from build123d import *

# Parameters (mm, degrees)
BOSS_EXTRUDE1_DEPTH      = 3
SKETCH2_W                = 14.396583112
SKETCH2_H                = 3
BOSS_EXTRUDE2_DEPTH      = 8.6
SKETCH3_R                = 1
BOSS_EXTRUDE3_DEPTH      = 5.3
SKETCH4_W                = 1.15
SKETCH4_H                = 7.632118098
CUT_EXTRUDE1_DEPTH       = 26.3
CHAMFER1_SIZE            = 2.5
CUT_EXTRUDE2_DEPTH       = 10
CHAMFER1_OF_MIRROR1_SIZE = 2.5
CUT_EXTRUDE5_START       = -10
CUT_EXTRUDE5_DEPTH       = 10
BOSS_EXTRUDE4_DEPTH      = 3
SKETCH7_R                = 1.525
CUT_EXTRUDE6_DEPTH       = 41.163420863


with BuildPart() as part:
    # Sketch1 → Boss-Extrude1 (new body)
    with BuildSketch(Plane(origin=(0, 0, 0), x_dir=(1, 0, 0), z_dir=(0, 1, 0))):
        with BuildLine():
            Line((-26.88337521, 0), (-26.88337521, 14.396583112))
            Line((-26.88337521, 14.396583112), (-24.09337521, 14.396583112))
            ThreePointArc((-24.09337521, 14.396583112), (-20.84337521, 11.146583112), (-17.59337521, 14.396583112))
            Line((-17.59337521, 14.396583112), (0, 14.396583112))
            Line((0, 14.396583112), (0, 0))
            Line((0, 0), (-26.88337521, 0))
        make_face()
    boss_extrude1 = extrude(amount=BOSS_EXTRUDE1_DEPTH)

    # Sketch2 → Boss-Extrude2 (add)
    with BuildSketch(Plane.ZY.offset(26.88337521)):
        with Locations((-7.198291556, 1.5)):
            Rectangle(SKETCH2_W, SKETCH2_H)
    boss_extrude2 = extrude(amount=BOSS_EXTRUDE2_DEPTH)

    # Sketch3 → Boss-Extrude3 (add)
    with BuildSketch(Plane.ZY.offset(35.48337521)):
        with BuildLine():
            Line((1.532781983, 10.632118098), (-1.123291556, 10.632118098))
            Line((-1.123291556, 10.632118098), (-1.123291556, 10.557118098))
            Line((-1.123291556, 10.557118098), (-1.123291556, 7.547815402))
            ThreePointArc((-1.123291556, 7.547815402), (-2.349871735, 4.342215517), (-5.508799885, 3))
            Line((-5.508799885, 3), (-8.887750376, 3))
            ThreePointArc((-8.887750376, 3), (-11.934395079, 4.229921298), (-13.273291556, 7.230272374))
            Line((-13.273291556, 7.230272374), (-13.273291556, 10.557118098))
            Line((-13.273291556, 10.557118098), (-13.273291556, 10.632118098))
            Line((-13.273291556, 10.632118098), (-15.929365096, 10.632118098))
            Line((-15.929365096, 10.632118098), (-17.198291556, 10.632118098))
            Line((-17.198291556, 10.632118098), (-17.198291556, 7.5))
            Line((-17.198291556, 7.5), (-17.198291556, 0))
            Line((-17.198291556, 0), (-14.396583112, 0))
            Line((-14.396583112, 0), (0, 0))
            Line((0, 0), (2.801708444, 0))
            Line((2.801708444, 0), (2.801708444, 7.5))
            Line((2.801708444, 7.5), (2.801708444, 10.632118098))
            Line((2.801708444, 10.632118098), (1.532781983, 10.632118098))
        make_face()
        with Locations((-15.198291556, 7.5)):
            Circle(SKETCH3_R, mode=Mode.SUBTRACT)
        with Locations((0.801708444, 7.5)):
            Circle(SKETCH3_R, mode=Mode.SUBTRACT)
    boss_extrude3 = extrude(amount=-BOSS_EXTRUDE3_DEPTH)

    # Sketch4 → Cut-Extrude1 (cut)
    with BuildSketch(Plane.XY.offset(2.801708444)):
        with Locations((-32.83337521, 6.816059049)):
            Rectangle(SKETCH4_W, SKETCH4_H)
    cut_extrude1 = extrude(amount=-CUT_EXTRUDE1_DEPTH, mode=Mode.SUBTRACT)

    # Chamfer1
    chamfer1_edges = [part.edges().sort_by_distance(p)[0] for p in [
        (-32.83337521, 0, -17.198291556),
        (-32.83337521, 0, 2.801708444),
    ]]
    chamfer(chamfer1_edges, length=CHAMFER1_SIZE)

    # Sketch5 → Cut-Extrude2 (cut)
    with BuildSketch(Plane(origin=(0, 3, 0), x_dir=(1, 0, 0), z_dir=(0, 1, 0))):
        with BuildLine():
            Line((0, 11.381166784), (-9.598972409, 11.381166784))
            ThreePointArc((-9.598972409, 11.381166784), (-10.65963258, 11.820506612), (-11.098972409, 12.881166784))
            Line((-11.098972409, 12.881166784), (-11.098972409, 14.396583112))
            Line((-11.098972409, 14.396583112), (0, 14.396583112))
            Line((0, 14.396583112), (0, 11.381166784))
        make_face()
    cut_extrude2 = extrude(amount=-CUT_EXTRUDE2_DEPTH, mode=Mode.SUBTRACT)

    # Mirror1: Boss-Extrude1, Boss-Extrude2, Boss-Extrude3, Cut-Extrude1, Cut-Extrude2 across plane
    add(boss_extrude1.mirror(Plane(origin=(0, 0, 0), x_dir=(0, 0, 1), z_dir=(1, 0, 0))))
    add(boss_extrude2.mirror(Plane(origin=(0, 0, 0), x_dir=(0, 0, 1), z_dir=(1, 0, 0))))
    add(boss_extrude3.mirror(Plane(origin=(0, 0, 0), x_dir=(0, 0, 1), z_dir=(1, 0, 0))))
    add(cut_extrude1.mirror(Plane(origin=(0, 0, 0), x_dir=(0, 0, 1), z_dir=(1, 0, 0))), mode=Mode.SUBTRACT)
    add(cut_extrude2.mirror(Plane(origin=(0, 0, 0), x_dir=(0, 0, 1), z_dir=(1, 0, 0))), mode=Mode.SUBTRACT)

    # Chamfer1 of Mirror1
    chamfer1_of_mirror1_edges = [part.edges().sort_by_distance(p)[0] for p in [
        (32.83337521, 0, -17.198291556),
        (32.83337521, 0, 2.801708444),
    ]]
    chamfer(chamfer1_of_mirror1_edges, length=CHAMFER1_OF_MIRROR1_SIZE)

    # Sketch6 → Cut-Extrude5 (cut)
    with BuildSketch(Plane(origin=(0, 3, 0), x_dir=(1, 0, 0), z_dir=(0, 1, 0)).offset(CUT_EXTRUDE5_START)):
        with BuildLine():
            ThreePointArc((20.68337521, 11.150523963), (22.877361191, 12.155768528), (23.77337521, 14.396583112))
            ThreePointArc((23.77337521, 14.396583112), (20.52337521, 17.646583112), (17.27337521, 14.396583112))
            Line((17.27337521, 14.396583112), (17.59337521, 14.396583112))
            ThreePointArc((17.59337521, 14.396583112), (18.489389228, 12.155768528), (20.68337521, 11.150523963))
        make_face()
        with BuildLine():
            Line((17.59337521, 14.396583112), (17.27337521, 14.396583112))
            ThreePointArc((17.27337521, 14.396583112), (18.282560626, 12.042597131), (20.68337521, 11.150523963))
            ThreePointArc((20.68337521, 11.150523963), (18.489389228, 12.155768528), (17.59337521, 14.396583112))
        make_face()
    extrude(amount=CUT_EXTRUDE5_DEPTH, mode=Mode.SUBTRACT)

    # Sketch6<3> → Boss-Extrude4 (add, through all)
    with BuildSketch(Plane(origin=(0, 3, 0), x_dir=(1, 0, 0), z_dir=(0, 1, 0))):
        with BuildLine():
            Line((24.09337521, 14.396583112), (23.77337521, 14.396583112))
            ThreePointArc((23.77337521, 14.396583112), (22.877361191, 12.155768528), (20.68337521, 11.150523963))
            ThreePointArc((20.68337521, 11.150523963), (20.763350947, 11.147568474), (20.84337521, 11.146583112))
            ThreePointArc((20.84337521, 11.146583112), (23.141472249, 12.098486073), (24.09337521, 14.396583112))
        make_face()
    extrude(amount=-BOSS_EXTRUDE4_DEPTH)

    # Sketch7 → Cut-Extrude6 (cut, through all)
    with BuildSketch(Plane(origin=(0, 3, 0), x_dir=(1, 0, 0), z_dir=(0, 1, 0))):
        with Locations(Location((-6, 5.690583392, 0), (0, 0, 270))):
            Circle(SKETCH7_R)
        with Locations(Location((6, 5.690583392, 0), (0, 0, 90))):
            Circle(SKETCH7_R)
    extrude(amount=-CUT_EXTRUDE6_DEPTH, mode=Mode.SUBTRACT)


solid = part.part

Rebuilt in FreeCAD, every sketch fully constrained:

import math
import FreeCAD as App
import Part
import Sketcher

V = App.Vector


def edges_at(feature, points):
    """Names of the edges that pass closest to the given points."""
    edges = feature.Shape.Edges
    near = lambda p: min(range(len(edges)), key=lambda i: edges[i].distToShape(Part.Vertex(*p))[0])
    return sorted({f"Edge{near(p) + 1}" for p in points})


def add_polygon(sketch, points):
    """Adds a closed chain of lines whose ends are joined by coincident constraints."""
    first, n = sketch.GeometryCount, len(points)
    for a, b in zip(points, points[1:] + points[:1]):
        sketch.addGeometry(Part.LineSegment(App.Vector(*a, 0), App.Vector(*b, 0)), False)
    for i in range(n):
        sketch.addConstraint(Sketcher.Constraint("Coincident", first + i, 2, first + (i + 1) % n, 1))

doc = App.newDocument("Part")
body = doc.addObject("PartDesign::Body", "Body")

sketch1 = body.newObject("Sketcher::SketchObject", "Sketch")
sketch1.AttachmentSupport = (doc.getObject("XZ_Plane"), [""])
sketch1.MapMode = "FlatFace"
sketch1.addGeometry([
    Part.LineSegment(V(-26.9, -14.4, 0), V(-26.9, 0, 0)),
    Part.LineSegment(V(-26.9, 0, 0), V(0, 0, 0)),
    Part.LineSegment(V(0, 0, 0), V(0, -14.4, 0)),
    Part.LineSegment(V(0, -14.4, 0), V(-17.6, -14.4, 0)),
    Part.ArcOfCircle(Part.Circle(V(-20.8, -14.4, 0), V(0, 0, 1), 3.2), math.radians(0), math.radians(180)),
    Part.LineSegment(V(-24.1, -14.4, 0), V(-26.9, -14.4, 0)),
], False)
sketch1.addConstraint([
    Sketcher.Constraint("Coincident", 0, 2, 1, 1),
    Sketcher.Constraint("Coincident", 1, 2, 2, 1),
    Sketcher.Constraint("Coincident", 2, 2, 3, 1),
    Sketcher.Constraint("Coincident", 3, 2, 4, 1),
    Sketcher.Constraint("Coincident", 4, 2, 5, 1),
    Sketcher.Constraint("Coincident", 5, 2, 0, 1),
    Sketcher.Constraint("Vertical", 0),
    Sketcher.Constraint("Horizontal", 1),
    Sketcher.Constraint("Vertical", 2),
    Sketcher.Constraint("Horizontal", 3),
    Sketcher.Constraint("Horizontal", 5),
    Sketcher.Constraint("Coincident", 1, 2, -1, 1),
    Sketcher.Constraint("Horizontal", 4, 3, 2, 2),
    Sketcher.Constraint("Horizontal", 3, 2, 4, 2),
    Sketcher.Constraint("Radius", 4, 3.25),
    Sketcher.Constraint("DistanceX", 5, 2, 5, 1, 2.79),
    Sketcher.Constraint("DistanceX", 1, 1, 1, 2, 26.883375),
    Sketcher.Constraint("DistanceY", 0, 1, 0, 2, 14.396583),
])
pad1 = body.newObject("PartDesign::Pad", "Pad")
pad1.Profile = sketch1
pad1.Length = 3
pad1.Reversed = True

sketch2 = body.newObject("Sketcher::SketchObject", "Sketch001")
sketch2.AttachmentSupport = (doc.getObject("YZ_Plane"), [""])
sketch2.MapMode = "FlatFace"
sketch2.AttachmentOffset = App.Placement(V(0, 0, -26.883375), App.Rotation())
add_polygon(sketch2, [(3, -14.4), (0, -14.4), (0, 0), (3, 0)])
sketch2.addConstraint([
    Sketcher.Constraint("Horizontal", 0),
    Sketcher.Constraint("Vertical", 1),
    Sketcher.Constraint("Horizontal", 2),
    Sketcher.Constraint("Vertical", 3),
    Sketcher.Constraint("Coincident", 1, 2, -1, 1),
    Sketcher.Constraint("DistanceX", 0, 2, 0, 1, 3.0),
    Sketcher.Constraint("DistanceY", 1, 1, 1, 2, 14.396583),
])
pad2 = body.newObject("PartDesign::Pad", "Pad001")
pad2.Profile = sketch2
pad2.Length = 8.6
pad2.Reversed = True

sketch3 = body.newObject("Sketcher::SketchObject", "Sketch002")
sketch3.AttachmentSupport = (doc.getObject("YZ_Plane"), [""])
sketch3.MapMode = "FlatFace"
sketch3.AttachmentOffset = App.Placement(V(0, 0, -35.483375), App.Rotation())
sketch3.addGeometry([
    Part.LineSegment(V(10.6, -1.1, 0), V(7.5, -1.1, 0)),
    Part.ArcOfCircle(Part.Circle(V(7.4, -5.5, 0), V(0, 0, 1), 4.4), math.radians(88), math.radians(180)),
    Part.LineSegment(V(3, -5.5, 0), V(3, -8.9, 0)),
    Part.ArcOfCircle(Part.Circle(V(7.4, -8.9, 0), V(0, 0, 1), 4.4), math.radians(180), math.radians(268)),
    Part.LineSegment(V(7.2, -13.3, 0), V(10.6, -13.3, 0)),
    Part.LineSegment(V(10.6, -13.3, 0), V(10.6, -17.2, 0)),
    Part.LineSegment(V(10.6, -17.2, 0), V(0, -17.2, 0)),
    Part.LineSegment(V(0, -17.2, 0), V(0, 2.8, 0)),
    Part.LineSegment(V(0, 2.8, 0), V(10.6, 2.8, 0)),
    Part.LineSegment(V(10.6, 2.8, 0), V(10.6, -1.1, 0)),
    Part.Circle(V(7.5, -15.2, 0), V(0, 0, 1), 1),
    Part.Circle(V(7.5, 0.8, 0), V(0, 0, 1), 1),
], False)
sketch3.addConstraint([
    Sketcher.Constraint("Coincident", 0, 2, 1, 1),
    Sketcher.Constraint("Tangent", 1, 2, 2, 1),
    Sketcher.Constraint("Tangent", 2, 2, 3, 1),
    Sketcher.Constraint("Coincident", 3, 2, 4, 1),
    Sketcher.Constraint("Coincident", 4, 2, 5, 1),
    Sketcher.Constraint("Coincident", 5, 2, 6, 1),
    Sketcher.Constraint("Coincident", 6, 2, 7, 1),
    Sketcher.Constraint("Coincident", 7, 2, 8, 1),
    Sketcher.Constraint("Coincident", 8, 2, 9, 1),
    Sketcher.Constraint("Coincident", 9, 2, 0, 1),
    Sketcher.Constraint("Horizontal", 0),
    Sketcher.Constraint("Vertical", 2),
    Sketcher.Constraint("Horizontal", 4),
    Sketcher.Constraint("Vertical", 5),
    Sketcher.Constraint("Horizontal", 6),
    Sketcher.Constraint("Vertical", 7),
    Sketcher.Constraint("Horizontal", 8),
    Sketcher.Constraint("Vertical", 9),
    Sketcher.Constraint("Equal", 10, 11),
    Sketcher.Constraint("PointOnObject", 6, 2, -2),
    Sketcher.Constraint("Vertical", 10, 3, 11, 3),
    Sketcher.Constraint("Vertical", 5, 2, 8, 2),
    Sketcher.Constraint("Equal", 5, 9),
    Sketcher.Constraint("Diameter", 10, 2.0),
    Sketcher.Constraint("DistanceY", 7, 1, 7, 2, 20.0),
    Sketcher.Constraint("DistanceX", -1, 1, 1, 2, 3.0),
    Sketcher.Constraint("DistanceY", 10, 3, 11, 3, 16.0),
    Sketcher.Constraint("DistanceY", 5, 2, 10, 3, 2.0),
    Sketcher.Constraint("DistanceX", -1, 1, 10, 3, 7.5),
    Sketcher.Constraint("DistanceY", 5, 2, 5, 1, 3.925),
    Sketcher.Constraint("Radius", 3, 4.388391),
    Sketcher.Constraint("Radius", 1, 4.388405),
    Sketcher.Constraint("DistanceX", 6, 2, 6, 1, 10.632118),
    Sketcher.Constraint("DistanceY", 2, 2, 2, 1, 3.37895),
    Sketcher.Constraint("DistanceY", 1, 3, -1, 1, 5.5088),
    Sketcher.Constraint("DistanceX", 0, 2, 0, 1, 3.084303),
])
pad3 = body.newObject("PartDesign::Pad", "Pad002")
pad3.Profile = sketch3
pad3.Length = 5.3

sketch4 = body.newObject("Sketcher::SketchObject", "Sketch003")
sketch4.AttachmentSupport = (doc.getObject("XY_Plane"), [""])
sketch4.MapMode = "FlatFace"
sketch4.AttachmentOffset = App.Placement(V(0, 0, 2.801708), App.Rotation())
add_polygon(sketch4, [(-33.4, 10.6), (-33.4, 3), (-32.3, 3), (-32.3, 10.6)])
sketch4.addConstraint([
    Sketcher.Constraint("Vertical", 0),
    Sketcher.Constraint("Horizontal", 1),
    Sketcher.Constraint("Vertical", 2),
    Sketcher.Constraint("Horizontal", 3),
    Sketcher.Constraint("DistanceY", -1, 1, 0, 2, 3.0),
    Sketcher.Constraint("DistanceX", 1, 1, 1, 2, 1.15),
    Sketcher.Constraint("DistanceY", 0, 2, 0, 1, 7.632118),
    Sketcher.Constraint("DistanceX", 0, 2, -1, 1, 33.408375),
])
pocket1 = body.newObject("PartDesign::Pocket", "Pocket")
pocket1.Profile = sketch4
pocket1.Length = 26.3
doc.recompute()

chamfer = body.newObject("PartDesign::Chamfer", "Chamfer")
chamfer.Base = (pocket1, edges_at(pocket1, [(-32.833, 0, -17.198), (-32.833, 0, 2.802)]))
chamfer.Size = 2.5

sketch5 = body.newObject("Sketcher::SketchObject", "Sketch004")
sketch5.AttachmentSupport = (doc.getObject("XZ_Plane"), [""])
sketch5.MapMode = "FlatFace"
sketch5.AttachmentOffset = App.Placement(V(0, 0, -3), App.Rotation())
sketch5.addGeometry([
    Part.LineSegment(V(-9.6, -11.4, 0), V(0, -11.4, 0)),
    Part.LineSegment(V(0, -11.4, 0), V(0, -14.4, 0)),
    Part.LineSegment(V(0, -14.4, 0), V(-11.1, -14.4, 0)),
    Part.LineSegment(V(-11.1, -14.4, 0), V(-11.1, -12.9, 0)),
    Part.ArcOfCircle(Part.Circle(V(-9.6, -12.9, 0), V(0, 0, 1), 1.5), math.radians(90), math.radians(180)),
], False)
sketch5.addConstraint([
    Sketcher.Constraint("Coincident", 0, 2, 1, 1),
    Sketcher.Constraint("Coincident", 1, 2, 2, 1),
    Sketcher.Constraint("Coincident", 2, 2, 3, 1),
    Sketcher.Constraint("Tangent", 3, 2, 4, 2),
    Sketcher.Constraint("Tangent", 4, 1, 0, 1),
    Sketcher.Constraint("Horizontal", 0),
    Sketcher.Constraint("Vertical", 1),
    Sketcher.Constraint("Horizontal", 2),
    Sketcher.Constraint("Vertical", 3),
    Sketcher.Constraint("PointOnObject", 0, 2, -2),
    Sketcher.Constraint("Radius", 4, 1.5),
    Sketcher.Constraint("DistanceX", 0, 1, 0, 2, 9.598972),
    Sketcher.Constraint("DistanceY", 1, 2, 1, 1, 3.015416),
    Sketcher.Constraint("DistanceY", 4, 3, -1, 1, 12.881167),
])
pocket2 = body.newObject("PartDesign::Pocket", "Pocket001")
pocket2.Profile = sketch5
pocket2.Length = 10
pocket2.Reversed = True
doc.recompute()

mirrored = body.newObject("PartDesign::Mirrored", "Mirrored")
mirrored.Originals = [pad1, pad2, pad3, pocket1, pocket2]
mirrored.MirrorPlane = (doc.getObject("YZ_Plane"), [""])
body.Tip = mirrored
doc.recompute()

chamfer2 = body.newObject("PartDesign::Chamfer", "Chamfer001")
chamfer2.Base = (mirrored, edges_at(mirrored, [(32.833, 0, -17.198), (32.833, 0, 2.802)]))
chamfer2.Size = 2.5

sketch6 = body.newObject("Sketcher::SketchObject", "Sketch005")
sketch6.AttachmentSupport = (doc.getObject("XZ_Plane"), [""])
sketch6.MapMode = "FlatFace"
sketch6.AttachmentOffset = App.Placement(V(0, 0, 7), App.Rotation())
sketch6.addGeometry([
    Part.ArcOfCircle(Part.Circle(V(20.5, -14.4, 0), V(0, 0, 1), 3.2), math.radians(0), math.radians(87)),
    Part.ArcOfCircle(Part.Circle(V(20.5, -14.4, 0), V(0, 0, 1), 3.2), math.radians(180), math.radians(360)),
    Part.ArcOfCircle(Part.Circle(V(20.5, -14.4, 0), V(0, 0, 1), 3.2), math.radians(87), math.radians(180)),
], False)
sketch6.addConstraint([
    Sketcher.Constraint("Tangent", 0, 1, 1, 2),
    Sketcher.Constraint("Tangent", 1, 1, 2, 2),
    Sketcher.Constraint("Tangent", 2, 1, 0, 2),
    Sketcher.Constraint("Horizontal", 2, 3, 0, 1),
    Sketcher.Constraint("Horizontal", 0, 1, 1, 1),
    Sketcher.Constraint("Radius", 0, 3.25),
    Sketcher.Constraint("DistanceX", 0, 3, 2, 1, 0.16),
    Sketcher.Constraint("DistanceX", -1, 1, 0, 3, 20.523375),
    Sketcher.Constraint("DistanceY", 0, 3, -1, 1, 14.396583),
])
pocket3 = body.newObject("PartDesign::Pocket", "Pocket002")
pocket3.Profile = sketch6
pocket3.Length = 10

sketch7 = body.newObject("Sketcher::SketchObject", "Sketch006")
sketch7.AttachmentSupport = (doc.getObject("XZ_Plane"), [""])
sketch7.MapMode = "FlatFace"
sketch7.AttachmentOffset = App.Placement(V(0, 0, -3), App.Rotation())
sketch7.addGeometry([
    Part.LineSegment(V(24.09, -14.4, 0), V(23.77, -14.4, 0)),
    Part.ArcOfCircle(Part.Circle(V(20.52, -14.4, 0), V(0, 0, 1), 3.25), math.radians(0), math.radians(87)),
    Part.ArcOfCircle(Part.Circle(V(20.84, -14.4, 0), V(0, 0, 1), 3.25), math.radians(90), math.radians(92.82)),
    Part.ArcOfCircle(Part.Circle(V(20.84, -14.4, 0), V(0, 0, 1), 3.25), math.radians(0), math.radians(90)),
], False)
sketch7.addConstraint([
    Sketcher.Constraint("Coincident", 0, 2, 1, 1),
    Sketcher.Constraint("Coincident", 1, 2, 2, 2),
    Sketcher.Constraint("Tangent", 2, 1, 3, 2),
    Sketcher.Constraint("Coincident", 3, 1, 0, 1),
    Sketcher.Constraint("Horizontal", 0),
    Sketcher.Constraint("Equal", 1, 2),
    Sketcher.Constraint("Equal", 2, 3),
    Sketcher.Constraint("Horizontal", 1, 3, 2, 3),
    Sketcher.Constraint("Horizontal", 3, 3, 0, 2),
    Sketcher.Constraint("Vertical", 3, 3, 2, 1),
    Sketcher.Constraint("Radius", 1, 3.25),
    Sketcher.Constraint("DistanceX", 0, 2, 0, 1, 0.32),
    Sketcher.Constraint("DistanceX", -1, 1, 1, 3, 20.523375),
    Sketcher.Constraint("DistanceY", 1, 3, -1, 1, 14.396583),
])
pad4 = body.newObject("PartDesign::Pad", "Pad003")
pad4.Profile = sketch7
pad4.Length = 3

sketch8 = body.newObject("Sketcher::SketchObject", "Sketch007")
sketch8.AttachmentSupport = (doc.getObject("XZ_Plane"), [""])
sketch8.MapMode = "FlatFace"
sketch8.AttachmentOffset = App.Placement(V(0, 0, -3), App.Rotation())
sketch8.addGeometry([
    Part.Circle(V(-6, -5.7, 0), V(0, 0, 1), 1.5),
    Part.Circle(V(6, -5.7, 0), V(0, 0, 1), 1.5),
], False)
sketch8.addConstraint([
    Sketcher.Constraint("Equal", 0, 1),
    Sketcher.Constraint("Symmetric", 0, 3, 1, 3, -2),
    Sketcher.Constraint("Diameter", 0, 3.05),
    Sketcher.Constraint("DistanceX", 0, 3, -1, 1, 6.0),
    Sketcher.Constraint("DistanceY", 0, 3, -1, 1, 5.690583),
])
pocket4 = body.newObject("PartDesign::Pocket", "Pocket003")
pocket4.Profile = sketch8
pocket4.Type = "ThroughAll"
pocket4.Reversed = True

doc.recompute()
